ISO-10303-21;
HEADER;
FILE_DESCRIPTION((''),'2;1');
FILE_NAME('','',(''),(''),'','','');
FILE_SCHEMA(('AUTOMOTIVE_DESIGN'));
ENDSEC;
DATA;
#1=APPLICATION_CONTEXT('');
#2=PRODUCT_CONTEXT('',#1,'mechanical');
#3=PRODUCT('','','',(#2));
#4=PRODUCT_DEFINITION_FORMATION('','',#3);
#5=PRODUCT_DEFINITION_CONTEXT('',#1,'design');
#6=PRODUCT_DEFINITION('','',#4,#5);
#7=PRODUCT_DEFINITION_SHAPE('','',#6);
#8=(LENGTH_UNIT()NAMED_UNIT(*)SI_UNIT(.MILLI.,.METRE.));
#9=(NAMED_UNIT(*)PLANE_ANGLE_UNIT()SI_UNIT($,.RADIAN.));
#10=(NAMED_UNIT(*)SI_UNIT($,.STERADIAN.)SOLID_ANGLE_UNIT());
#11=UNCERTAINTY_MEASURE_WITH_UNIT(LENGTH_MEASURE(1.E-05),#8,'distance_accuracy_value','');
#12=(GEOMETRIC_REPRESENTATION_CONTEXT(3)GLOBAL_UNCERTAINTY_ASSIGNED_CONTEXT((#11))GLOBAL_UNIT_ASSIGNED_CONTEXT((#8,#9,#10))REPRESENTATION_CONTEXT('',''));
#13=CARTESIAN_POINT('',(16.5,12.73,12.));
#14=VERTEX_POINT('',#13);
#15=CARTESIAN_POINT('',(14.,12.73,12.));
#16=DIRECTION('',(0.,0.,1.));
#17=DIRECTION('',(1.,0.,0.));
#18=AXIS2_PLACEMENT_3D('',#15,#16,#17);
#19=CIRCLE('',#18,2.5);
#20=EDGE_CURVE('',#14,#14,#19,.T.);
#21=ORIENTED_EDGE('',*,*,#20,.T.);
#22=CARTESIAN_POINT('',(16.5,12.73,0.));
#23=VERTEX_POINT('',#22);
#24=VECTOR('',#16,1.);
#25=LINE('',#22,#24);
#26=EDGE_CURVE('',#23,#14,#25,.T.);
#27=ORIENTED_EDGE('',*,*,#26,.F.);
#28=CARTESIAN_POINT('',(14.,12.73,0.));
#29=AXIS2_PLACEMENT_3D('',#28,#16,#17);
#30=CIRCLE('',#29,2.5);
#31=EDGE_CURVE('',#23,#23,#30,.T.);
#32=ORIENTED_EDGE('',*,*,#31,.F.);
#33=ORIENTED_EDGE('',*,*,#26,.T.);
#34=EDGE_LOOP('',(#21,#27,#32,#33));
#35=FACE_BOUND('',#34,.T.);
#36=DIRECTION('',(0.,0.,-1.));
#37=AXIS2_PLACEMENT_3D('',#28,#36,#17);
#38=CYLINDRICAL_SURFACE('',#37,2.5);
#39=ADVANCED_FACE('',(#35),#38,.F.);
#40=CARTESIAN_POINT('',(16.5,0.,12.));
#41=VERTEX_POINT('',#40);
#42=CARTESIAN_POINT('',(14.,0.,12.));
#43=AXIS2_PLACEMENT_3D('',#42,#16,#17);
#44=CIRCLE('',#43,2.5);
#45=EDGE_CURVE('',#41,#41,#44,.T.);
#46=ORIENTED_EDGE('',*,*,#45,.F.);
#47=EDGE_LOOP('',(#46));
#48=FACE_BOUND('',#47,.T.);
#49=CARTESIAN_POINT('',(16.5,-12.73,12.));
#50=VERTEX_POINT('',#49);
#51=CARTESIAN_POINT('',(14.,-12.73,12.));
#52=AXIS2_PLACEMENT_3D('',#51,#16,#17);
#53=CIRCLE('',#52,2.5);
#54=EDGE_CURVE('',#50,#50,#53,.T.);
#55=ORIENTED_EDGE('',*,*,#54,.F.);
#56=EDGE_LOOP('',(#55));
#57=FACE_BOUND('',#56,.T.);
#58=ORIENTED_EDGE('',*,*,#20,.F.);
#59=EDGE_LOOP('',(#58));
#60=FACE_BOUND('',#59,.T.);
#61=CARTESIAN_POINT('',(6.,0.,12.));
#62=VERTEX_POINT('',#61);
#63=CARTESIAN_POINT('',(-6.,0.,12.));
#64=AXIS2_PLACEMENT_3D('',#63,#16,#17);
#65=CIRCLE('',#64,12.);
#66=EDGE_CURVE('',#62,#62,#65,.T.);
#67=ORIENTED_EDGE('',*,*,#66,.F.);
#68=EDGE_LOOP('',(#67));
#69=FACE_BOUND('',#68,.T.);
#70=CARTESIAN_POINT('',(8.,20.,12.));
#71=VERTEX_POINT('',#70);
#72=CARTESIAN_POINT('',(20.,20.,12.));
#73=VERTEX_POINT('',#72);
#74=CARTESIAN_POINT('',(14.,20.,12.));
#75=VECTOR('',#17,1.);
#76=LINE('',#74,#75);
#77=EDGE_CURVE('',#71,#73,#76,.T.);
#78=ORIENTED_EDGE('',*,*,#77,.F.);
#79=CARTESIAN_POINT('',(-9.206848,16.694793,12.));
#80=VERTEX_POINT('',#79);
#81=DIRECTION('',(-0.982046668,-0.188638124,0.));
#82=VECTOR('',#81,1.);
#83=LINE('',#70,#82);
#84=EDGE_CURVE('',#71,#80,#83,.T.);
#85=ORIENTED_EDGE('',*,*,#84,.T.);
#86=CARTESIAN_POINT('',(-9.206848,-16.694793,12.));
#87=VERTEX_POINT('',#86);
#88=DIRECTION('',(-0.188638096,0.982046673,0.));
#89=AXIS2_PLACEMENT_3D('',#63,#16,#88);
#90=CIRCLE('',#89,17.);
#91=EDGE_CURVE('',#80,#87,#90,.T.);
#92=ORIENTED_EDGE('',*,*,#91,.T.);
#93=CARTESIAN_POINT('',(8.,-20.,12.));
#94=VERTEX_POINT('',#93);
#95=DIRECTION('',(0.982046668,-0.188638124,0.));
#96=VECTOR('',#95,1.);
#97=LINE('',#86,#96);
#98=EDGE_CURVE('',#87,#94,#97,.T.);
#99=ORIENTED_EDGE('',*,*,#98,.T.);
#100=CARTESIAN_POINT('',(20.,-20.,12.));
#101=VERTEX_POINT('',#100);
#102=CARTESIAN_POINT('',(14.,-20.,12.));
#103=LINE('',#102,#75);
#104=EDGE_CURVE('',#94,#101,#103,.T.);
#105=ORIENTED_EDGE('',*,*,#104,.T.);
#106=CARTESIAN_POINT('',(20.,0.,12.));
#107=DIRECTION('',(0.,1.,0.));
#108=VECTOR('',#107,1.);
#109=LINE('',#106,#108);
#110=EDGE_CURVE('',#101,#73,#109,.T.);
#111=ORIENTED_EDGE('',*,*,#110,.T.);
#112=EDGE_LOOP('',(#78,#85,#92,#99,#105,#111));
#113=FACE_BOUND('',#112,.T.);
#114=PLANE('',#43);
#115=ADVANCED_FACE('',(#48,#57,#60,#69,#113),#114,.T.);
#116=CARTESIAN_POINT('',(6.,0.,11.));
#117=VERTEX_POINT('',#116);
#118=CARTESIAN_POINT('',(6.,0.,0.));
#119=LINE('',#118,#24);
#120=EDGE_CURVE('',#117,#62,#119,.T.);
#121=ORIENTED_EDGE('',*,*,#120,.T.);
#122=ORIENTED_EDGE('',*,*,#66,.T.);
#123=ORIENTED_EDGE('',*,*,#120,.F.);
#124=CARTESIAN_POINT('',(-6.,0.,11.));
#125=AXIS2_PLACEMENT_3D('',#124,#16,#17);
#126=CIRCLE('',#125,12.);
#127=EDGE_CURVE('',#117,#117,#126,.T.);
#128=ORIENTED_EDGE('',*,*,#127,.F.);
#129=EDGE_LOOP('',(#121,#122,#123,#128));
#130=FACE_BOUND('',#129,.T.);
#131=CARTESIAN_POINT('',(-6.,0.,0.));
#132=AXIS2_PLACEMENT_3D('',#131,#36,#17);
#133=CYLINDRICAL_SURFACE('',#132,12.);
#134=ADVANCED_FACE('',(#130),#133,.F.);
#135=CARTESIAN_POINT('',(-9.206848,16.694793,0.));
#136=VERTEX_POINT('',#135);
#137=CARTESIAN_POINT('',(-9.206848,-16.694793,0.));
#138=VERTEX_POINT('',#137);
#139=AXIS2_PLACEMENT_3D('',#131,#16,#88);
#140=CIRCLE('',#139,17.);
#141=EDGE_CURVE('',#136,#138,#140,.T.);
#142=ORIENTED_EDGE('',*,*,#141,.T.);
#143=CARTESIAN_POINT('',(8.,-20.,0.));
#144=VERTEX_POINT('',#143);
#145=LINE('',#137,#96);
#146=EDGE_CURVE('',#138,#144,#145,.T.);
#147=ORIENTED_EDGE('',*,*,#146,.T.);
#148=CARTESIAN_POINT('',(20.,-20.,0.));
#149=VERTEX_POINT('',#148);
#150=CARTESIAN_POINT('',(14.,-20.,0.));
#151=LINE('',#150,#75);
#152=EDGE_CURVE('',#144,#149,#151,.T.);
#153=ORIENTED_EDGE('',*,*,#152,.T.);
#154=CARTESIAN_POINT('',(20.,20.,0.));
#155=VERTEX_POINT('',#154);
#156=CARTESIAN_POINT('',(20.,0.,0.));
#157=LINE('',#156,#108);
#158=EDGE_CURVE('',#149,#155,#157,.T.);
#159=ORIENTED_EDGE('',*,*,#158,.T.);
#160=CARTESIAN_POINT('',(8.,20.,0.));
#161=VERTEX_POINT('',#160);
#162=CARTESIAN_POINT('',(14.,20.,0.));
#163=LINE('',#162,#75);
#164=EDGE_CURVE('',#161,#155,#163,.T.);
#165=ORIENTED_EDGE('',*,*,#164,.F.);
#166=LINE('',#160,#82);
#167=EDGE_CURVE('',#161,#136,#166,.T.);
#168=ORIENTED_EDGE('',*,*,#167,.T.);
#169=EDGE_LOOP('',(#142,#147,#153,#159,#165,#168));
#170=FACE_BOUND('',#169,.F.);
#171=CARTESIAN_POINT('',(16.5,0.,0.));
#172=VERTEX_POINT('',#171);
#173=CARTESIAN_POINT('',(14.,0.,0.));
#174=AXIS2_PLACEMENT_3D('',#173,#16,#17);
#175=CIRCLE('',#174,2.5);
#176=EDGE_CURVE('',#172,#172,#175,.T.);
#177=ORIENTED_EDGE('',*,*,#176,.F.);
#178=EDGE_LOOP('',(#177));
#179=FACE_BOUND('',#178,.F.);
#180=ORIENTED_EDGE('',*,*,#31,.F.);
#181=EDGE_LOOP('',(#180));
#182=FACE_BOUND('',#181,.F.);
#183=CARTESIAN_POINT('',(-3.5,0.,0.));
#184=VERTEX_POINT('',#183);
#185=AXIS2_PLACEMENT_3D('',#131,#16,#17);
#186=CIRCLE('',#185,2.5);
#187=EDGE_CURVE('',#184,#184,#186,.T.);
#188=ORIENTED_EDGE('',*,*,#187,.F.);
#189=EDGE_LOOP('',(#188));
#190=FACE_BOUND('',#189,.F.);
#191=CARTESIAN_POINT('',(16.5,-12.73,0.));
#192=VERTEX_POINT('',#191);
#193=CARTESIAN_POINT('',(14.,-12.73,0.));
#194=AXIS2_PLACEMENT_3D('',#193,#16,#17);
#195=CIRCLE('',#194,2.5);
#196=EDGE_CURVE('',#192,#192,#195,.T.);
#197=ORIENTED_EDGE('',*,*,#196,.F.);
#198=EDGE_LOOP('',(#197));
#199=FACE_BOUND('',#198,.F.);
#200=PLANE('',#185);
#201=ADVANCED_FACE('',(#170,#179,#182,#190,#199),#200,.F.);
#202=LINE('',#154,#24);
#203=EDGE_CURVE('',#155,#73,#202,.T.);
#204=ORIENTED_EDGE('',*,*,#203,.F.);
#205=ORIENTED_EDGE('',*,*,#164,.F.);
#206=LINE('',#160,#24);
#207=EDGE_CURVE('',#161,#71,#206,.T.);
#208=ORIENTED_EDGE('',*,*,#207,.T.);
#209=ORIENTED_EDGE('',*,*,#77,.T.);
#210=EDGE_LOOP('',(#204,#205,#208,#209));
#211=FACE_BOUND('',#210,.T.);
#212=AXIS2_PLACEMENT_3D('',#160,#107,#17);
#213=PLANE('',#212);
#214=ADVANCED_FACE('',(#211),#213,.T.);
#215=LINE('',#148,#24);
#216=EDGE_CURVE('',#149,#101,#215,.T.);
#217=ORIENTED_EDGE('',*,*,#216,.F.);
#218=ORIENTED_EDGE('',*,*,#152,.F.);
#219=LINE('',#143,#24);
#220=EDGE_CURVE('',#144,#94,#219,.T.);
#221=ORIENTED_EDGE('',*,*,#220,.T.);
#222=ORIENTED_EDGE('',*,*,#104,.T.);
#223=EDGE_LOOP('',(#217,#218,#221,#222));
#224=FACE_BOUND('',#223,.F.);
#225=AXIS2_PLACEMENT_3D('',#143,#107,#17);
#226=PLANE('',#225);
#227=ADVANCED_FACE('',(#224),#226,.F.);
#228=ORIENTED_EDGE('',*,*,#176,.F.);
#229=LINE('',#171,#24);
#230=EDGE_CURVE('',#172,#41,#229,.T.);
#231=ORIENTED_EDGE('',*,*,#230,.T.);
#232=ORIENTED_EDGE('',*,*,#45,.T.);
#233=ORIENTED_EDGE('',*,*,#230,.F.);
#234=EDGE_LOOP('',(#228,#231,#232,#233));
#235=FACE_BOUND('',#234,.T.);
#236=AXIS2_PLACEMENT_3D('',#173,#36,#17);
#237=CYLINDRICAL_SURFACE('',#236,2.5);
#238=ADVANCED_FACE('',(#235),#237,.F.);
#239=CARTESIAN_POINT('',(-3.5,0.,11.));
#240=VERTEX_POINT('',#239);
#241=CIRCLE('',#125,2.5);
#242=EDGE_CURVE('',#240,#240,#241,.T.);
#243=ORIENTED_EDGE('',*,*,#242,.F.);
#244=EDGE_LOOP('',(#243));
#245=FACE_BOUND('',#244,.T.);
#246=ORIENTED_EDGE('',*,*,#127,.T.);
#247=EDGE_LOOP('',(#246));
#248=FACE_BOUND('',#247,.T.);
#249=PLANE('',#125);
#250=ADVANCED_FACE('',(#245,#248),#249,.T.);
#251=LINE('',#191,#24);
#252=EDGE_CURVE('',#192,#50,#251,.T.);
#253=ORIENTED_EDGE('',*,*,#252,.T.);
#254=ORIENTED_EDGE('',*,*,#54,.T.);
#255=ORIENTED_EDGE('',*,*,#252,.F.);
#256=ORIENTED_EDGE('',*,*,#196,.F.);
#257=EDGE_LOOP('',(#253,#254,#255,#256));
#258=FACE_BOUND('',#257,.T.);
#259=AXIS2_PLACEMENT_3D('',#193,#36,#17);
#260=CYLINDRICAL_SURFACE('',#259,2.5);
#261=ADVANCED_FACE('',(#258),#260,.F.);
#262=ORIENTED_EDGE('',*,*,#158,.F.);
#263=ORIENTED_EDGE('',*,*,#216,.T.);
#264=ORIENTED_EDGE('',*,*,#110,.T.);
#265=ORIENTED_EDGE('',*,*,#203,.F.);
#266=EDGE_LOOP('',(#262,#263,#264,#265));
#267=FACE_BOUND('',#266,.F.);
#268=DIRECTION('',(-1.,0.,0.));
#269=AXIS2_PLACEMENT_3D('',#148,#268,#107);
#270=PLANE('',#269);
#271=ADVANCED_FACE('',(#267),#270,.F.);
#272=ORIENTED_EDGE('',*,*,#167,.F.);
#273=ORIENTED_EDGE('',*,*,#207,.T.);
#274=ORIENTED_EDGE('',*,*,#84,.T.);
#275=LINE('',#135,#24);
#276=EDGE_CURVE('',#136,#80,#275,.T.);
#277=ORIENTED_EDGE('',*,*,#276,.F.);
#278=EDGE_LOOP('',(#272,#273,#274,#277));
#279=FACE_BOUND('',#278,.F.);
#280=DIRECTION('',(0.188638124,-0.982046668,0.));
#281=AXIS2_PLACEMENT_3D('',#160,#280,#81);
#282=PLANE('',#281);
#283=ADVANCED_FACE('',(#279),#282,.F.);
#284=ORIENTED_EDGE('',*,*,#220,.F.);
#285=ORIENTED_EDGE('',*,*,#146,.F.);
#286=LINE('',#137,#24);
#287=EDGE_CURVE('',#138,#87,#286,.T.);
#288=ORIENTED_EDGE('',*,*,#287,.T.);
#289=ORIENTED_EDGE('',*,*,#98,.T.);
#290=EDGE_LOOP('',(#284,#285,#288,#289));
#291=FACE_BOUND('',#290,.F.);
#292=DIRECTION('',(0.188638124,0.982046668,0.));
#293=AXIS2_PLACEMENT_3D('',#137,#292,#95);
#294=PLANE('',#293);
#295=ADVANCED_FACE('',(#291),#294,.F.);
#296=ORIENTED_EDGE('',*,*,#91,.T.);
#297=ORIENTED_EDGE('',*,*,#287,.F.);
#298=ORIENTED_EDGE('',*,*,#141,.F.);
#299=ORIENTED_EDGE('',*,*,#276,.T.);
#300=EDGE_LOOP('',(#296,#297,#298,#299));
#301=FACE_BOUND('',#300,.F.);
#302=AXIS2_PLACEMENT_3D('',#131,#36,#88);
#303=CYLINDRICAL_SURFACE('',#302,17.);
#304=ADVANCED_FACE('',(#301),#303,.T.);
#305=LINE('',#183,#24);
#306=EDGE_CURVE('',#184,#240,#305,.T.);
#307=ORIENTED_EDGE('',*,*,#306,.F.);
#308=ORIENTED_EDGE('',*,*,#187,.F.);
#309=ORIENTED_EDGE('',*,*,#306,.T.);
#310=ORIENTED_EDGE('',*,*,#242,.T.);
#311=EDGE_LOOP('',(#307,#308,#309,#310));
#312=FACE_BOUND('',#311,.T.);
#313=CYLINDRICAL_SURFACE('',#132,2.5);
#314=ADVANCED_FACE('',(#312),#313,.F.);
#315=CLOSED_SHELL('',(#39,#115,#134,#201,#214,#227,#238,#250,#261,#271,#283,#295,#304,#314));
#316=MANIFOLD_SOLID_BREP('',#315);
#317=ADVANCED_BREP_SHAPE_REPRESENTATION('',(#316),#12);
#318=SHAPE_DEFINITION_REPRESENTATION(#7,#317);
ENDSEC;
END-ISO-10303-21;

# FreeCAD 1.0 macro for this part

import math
import FreeCAD as App
import Part
import Sketcher
Q = App.Units.Quantity

doc = App.newDocument("Part")
params = doc.addObject("Spreadsheet::Sheet", "Params")
for row, (alias, value) in enumerate([
    ("sketch1_diameter", "24 mm"),
    ("sketch1_diameter2", "5 mm"),
    ("sketch1_radius", "17 mm"),
    ("sketch1_width", "12 mm"),
    ("sketch1_height", "40 mm"),
    ("pad1_length", "12 mm"),
    ("sketch2_diameter", "24 mm"),
    ("sketch2_diameter2", "5 mm"),
    ("pad2_length", "11 mm"),
], start=1):
    params.set(f"A{row}", alias)
    params.set(f"B{row}", "=" + value)
    params.setAlias(f"B{row}", alias)

body = doc.addObject("PartDesign::Body", "Body")

# Sketch on XY plane
sketch1 = body.newObject("Sketcher::SketchObject", "Sketch")
sketch1.AttachmentSupport = (doc.getObject("XY_Plane"), [""])
sketch1.MapMode = "FlatFace"
sketch1.addGeometry(Part.LineSegment(App.Vector(8, -20, 0), App.Vector(20, -20, 0)), False)
sketch1.addGeometry(Part.LineSegment(App.Vector(20, -20, 0), App.Vector(20, 20, 0)), False)
sketch1.addGeometry(Part.LineSegment(App.Vector(20, 20, 0), App.Vector(8, 20, 0)), False)
sketch1.addGeometry(Part.LineSegment(App.Vector(8, 20, 0), App.Vector(-9.2, 16.7, 0)), False)
sketch1.addGeometry(Part.ArcOfCircle(Part.Circle(App.Vector(-6, 0, 0), App.Vector(0, 0, 1), 17), math.radians(101), math.radians(259)), False)
sketch1.addGeometry(Part.LineSegment(App.Vector(-9.2, -16.7, 0), App.Vector(8, -20, 0)), False)
sketch1.addGeometry(Part.Circle(App.Vector(-6, 0, 0), App.Vector(0, 0, 1), 12), False)
sketch1.addGeometry(Part.Circle(App.Vector(14, -12.7, 0), App.Vector(0, 0, 1), 2.5), False)
sketch1.addGeometry(Part.Circle(App.Vector(14, 0, 0), App.Vector(0, 0, 1), 2.5), False)
sketch1.addGeometry(Part.Circle(App.Vector(14, 12.7, 0), App.Vector(0, 0, 1), 2.5), False)
sketch1.addConstraint(Sketcher.Constraint("Coincident", 0, 2, 1, 1))
sketch1.addConstraint(Sketcher.Constraint("Coincident", 1, 2, 2, 1))
sketch1.addConstraint(Sketcher.Constraint("Coincident", 2, 2, 3, 1))
sketch1.addConstraint(Sketcher.Constraint("Tangent", 3, 2, 4, 1))
sketch1.addConstraint(Sketcher.Constraint("Tangent", 4, 2, 5, 1))
sketch1.addConstraint(Sketcher.Constraint("Coincident", 5, 2, 0, 1))
sketch1.addConstraint(Sketcher.Constraint("Horizontal", 0))
sketch1.addConstraint(Sketcher.Constraint("Vertical", 1))
sketch1.addConstraint(Sketcher.Constraint("Horizontal", 2))
sketch1.addConstraint(Sketcher.Constraint("Coincident", 6, 3, 4, 3))
sketch1.addConstraint(Sketcher.Constraint("Equal", 7, 8))
sketch1.addConstraint(Sketcher.Constraint("Equal", 8, 9))
sketch1.addConstraint(Sketcher.Constraint("Symmetric", 7, 3, 9, 3, -1))
sketch1.addConstraint(Sketcher.Constraint("Symmetric", 3, 2, 4, 2, -1))
sketch1.addConstraint(Sketcher.Constraint("PointOnObject", 8, 3, -1))
sketch1.addConstraint(Sketcher.Constraint("Vertical", 7, 3, 8, 3))
sketch1.addConstraint(Sketcher.Constraint("Vertical", 2, 2, 5, 2))
sketch1.addConstraint(Sketcher.Constraint("Diameter", 6, Q("24 mm")))
sketch1.addConstraint(Sketcher.Constraint("Diameter", 7, Q("5 mm")))
sketch1.addConstraint(Sketcher.Constraint("Radius", 4, Q("17 mm")))
sketch1.addConstraint(Sketcher.Constraint("DistanceX", 0, 1, 0, 2, Q("12 mm")))
sketch1.addConstraint(Sketcher.Constraint("DistanceY", 1, 1, 1, 2, Q("40 mm")))
sketch1.addConstraint(Sketcher.Constraint("DistanceX", 4, 3, -1, 1, Q("6 mm")))
sketch1.addConstraint(Sketcher.Constraint("DistanceX", -1, 1, 7, 3, Q("14 mm")))
sketch1.addConstraint(Sketcher.Constraint("DistanceX", -1, 1, 0, 2, Q("20 mm")))
sketch1.addConstraint(Sketcher.Constraint("DistanceY", 7, 3, -1, 1, Q("12.73 mm")))
sketch1.setExpression("Constraints[17]", "Params.sketch1_diameter")
sketch1.setExpression("Constraints[18]", "Params.sketch1_diameter2")
sketch1.setExpression("Constraints[19]", "Params.sketch1_radius")
sketch1.setExpression("Constraints[20]", "Params.sketch1_width")
sketch1.setExpression("Constraints[21]", "Params.sketch1_height")
pad1 = body.newObject("PartDesign::Pad", "Pad")
pad1.Profile = sketch1
pad1.setExpression("Length", "Params.pad1_length")

# Sketch on XY plane
sketch2 = body.newObject("Sketcher::SketchObject", "Sketch001")
sketch2.AttachmentSupport = (doc.getObject("XY_Plane"), [""])
sketch2.MapMode = "FlatFace"
sketch2.addGeometry(Part.Circle(App.Vector(-6, 0, 0), App.Vector(0, 0, 1), 12), False)
sketch2.addGeometry(Part.Circle(App.Vector(-6, 0, 0), App.Vector(0, 0, 1), 2.5), False)
sketch2.addConstraint(Sketcher.Constraint("Coincident", 1, 3, 0, 3))
sketch2.addConstraint(Sketcher.Constraint("PointOnObject", 0, 3, -1))
sketch2.addConstraint(Sketcher.Constraint("Diameter", 0, Q("24 mm")))
sketch2.addConstraint(Sketcher.Constraint("Diameter", 1, Q("5 mm")))
sketch2.addConstraint(Sketcher.Constraint("DistanceX", 0, 3, -1, 1, Q("6 mm")))
sketch2.setExpression("Constraints[2]", "Params.sketch2_diameter")
sketch2.setExpression("Constraints[3]", "Params.sketch2_diameter2")
pad2 = body.newObject("PartDesign::Pad", "Pad001")
pad2.Profile = sketch2
pad2.setExpression("Length", "Params.pad2_length")

doc.recompute()
